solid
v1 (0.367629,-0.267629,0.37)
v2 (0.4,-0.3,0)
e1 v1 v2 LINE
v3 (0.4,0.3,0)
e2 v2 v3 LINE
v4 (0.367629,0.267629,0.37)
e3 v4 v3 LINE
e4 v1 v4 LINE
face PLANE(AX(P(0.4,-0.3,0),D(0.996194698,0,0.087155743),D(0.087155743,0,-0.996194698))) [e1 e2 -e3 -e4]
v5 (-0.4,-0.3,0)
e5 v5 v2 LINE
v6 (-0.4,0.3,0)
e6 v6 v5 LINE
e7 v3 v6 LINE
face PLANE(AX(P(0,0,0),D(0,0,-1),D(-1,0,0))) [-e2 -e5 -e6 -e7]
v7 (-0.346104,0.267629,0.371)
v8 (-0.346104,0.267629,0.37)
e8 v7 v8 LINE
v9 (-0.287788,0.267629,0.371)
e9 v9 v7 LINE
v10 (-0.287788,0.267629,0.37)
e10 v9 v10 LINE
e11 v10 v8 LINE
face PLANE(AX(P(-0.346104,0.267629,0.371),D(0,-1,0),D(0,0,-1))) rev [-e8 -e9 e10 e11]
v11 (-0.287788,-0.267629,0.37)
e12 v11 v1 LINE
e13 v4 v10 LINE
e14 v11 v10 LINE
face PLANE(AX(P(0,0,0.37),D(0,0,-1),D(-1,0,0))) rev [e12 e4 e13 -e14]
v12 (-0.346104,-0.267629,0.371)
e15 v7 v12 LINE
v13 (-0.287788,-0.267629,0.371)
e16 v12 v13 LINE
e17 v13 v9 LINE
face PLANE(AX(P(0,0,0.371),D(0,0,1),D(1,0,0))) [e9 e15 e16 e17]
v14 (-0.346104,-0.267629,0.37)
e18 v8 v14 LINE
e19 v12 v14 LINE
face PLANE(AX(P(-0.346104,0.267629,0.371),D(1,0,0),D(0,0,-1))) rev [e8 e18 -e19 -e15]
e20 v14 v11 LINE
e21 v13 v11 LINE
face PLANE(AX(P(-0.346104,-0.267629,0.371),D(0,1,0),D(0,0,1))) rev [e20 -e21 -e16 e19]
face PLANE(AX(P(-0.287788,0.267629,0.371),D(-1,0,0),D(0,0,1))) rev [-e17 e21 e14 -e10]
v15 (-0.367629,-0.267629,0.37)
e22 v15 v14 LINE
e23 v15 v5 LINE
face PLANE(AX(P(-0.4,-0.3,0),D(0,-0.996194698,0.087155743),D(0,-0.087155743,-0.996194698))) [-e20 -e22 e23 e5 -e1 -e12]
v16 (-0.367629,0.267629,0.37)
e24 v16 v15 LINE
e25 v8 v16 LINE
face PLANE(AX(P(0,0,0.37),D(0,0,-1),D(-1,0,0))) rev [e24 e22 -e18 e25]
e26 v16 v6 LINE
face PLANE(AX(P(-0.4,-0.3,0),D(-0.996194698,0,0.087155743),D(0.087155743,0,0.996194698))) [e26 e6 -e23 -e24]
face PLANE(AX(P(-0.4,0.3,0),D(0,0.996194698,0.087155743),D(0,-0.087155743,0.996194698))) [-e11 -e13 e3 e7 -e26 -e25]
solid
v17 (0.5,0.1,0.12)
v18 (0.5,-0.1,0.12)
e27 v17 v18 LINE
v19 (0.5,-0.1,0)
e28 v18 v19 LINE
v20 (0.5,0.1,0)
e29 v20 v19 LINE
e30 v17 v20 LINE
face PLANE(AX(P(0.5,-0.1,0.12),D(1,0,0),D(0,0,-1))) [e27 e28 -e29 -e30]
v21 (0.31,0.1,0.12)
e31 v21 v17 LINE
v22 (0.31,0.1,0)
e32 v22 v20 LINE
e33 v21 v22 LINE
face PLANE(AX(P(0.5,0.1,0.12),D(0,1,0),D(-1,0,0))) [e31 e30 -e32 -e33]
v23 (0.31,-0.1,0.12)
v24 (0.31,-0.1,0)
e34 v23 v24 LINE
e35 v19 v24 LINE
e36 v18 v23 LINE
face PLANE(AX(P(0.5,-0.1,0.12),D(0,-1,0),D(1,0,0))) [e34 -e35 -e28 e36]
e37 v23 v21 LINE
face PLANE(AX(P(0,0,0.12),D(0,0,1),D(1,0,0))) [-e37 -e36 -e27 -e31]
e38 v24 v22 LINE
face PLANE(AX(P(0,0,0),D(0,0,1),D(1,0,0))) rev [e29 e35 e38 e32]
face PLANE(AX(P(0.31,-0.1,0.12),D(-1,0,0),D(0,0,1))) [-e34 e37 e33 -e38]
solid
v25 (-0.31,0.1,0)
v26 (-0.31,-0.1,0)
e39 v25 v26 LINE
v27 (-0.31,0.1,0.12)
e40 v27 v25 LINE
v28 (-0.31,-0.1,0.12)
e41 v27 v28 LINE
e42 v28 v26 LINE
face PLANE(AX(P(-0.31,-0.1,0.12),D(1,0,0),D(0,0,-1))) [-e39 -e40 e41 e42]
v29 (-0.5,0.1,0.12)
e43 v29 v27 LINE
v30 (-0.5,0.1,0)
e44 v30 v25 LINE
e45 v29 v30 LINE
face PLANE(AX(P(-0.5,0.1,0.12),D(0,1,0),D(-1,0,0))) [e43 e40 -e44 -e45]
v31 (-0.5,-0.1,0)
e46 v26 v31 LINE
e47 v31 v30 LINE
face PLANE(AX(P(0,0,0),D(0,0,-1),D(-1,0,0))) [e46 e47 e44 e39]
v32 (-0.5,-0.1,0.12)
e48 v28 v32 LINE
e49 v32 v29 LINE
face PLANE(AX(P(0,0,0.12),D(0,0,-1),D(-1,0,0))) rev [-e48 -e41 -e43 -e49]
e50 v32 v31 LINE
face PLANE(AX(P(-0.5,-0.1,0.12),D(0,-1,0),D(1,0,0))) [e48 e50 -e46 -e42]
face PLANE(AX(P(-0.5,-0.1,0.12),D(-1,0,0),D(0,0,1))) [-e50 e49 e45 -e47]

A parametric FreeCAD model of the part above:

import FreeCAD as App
import Part
import Sketcher
from FreeCAD import Vector


def add_polygon(sketch, points):
    """Adds a closed chain of lines whose ends are joined by coincident constraints."""
    first, n = sketch.GeometryCount, len(points)
    for a, b in zip(points, points[1:] + points[:1]):
        sketch.addGeometry(Part.LineSegment(App.Vector(*a, 0), App.Vector(*b, 0)), False)
    for i in range(n):
        sketch.addConstraint(Sketcher.Constraint("Coincident", first + i, 2, first + (i + 1) % n, 1))

doc = App.newDocument("Part")
body = doc.addObject("PartDesign::Body", "Body")

# Sketch on XY plane
sketch1 = doc.addObject("Sketcher::SketchObject", "Sketch")
body.addObject(sketch1)
sketch1.AttachmentSupport = (doc.XY_Plane, [""])
sketch1.MapMode = "FlatFace"
add_polygon(sketch1, [(-0.4, 0.3), (-0.4, -0.3), (0.4, -0.3), (0.4, 0.3)])  # lines 0-3
sketch1.addConstraint([
    Sketcher.Constraint("Vertical", 0),
    Sketcher.Constraint("Horizontal", 1),
    Sketcher.Constraint("Vertical", 2),
    Sketcher.Constraint("Horizontal", 3),
    Sketcher.Constraint("Symmetric", 0, 2, 2, 2, -1, 1),
    Sketcher.Constraint("DistanceX", 1, 1, 1, 2, 0.8),
    Sketcher.Constraint("DistanceY", 0, 2, 0, 1, 0.6),
])
pad1 = doc.addObject("PartDesign::Pad", "Pad")
body.addObject(pad1)
pad1.Profile = sketch1
pad1.Length = 0.37
pad1.TaperAngle = -5

# Sketch on XY plane
sketch2 = doc.addObject("Sketcher::SketchObject", "Sketch001")
body.addObject(sketch2)
sketch2.AttachmentSupport = (doc.XY_Plane, [""])
sketch2.MapMode = "FlatFace"
sketch2.AttachmentOffset = App.Placement(Vector(0, 0, 0.37), App.Rotation())
add_polygon(sketch2, [(-0.35, 0.27), (-0.35, -0.27), (-0.29, -0.27), (-0.29, 0.27)])  # lines 0-3
sketch2.addConstraint([
    Sketcher.Constraint("Vertical", 0),
    Sketcher.Constraint("Horizontal", 1),
    Sketcher.Constraint("Vertical", 2),
    Sketcher.Constraint("Horizontal", 3),
    Sketcher.Constraint("DistanceY", 0, 2, 0, 1, 0.535258),
    Sketcher.Constraint("DistanceX", 1, 1, 1, 2, 0.058317),
    Sketcher.Constraint("DistanceY", 0, 2, -1, 1, 0.267629),
    Sketcher.Constraint("DistanceX", 0, 2, -1, 1, 0.346104),
])
pad2 = doc.addObject("PartDesign::Pad", "Pad001")
body.addObject(pad2)
pad2.Profile = sketch2
pad2.Length = 0.001
body2 = doc.addObject("PartDesign::Body", "Body001")

# Sketch on XY plane
sketch3 = doc.addObject("Sketcher::SketchObject", "Sketch002")
body2.addObject(sketch3)
sketch3.AttachmentSupport = (doc.getObject("XY_Plane001"), [""])
sketch3.MapMode = "FlatFace"
add_polygon(sketch3, [(-0.31, 0.1), (-0.31, -0.1), (-0.5, -0.1), (-0.5, 0.1)])  # lines 0-3
sketch3.addConstraint([
    Sketcher.Constraint("Vertical", 0),
    Sketcher.Constraint("Horizontal", 1),
    Sketcher.Constraint("Vertical", 2),
    Sketcher.Constraint("Horizontal", 3),
    Sketcher.Constraint("DistanceY", 0, 2, 0, 1, 0.2),
    Sketcher.Constraint("DistanceX", 1, 2, 1, 1, 0.19),
    Sketcher.Constraint("DistanceY", 0, 2, -1, 1, 0.1),
    Sketcher.Constraint("DistanceX", 1, 2, -1, 1, 0.5),
])
pad3 = doc.addObject("PartDesign::Pad", "Pad002")
body2.addObject(pad3)
pad3.Profile = sketch3
pad3.Length = 0.12
body3 = doc.addObject("PartDesign::Body", "Body002")

# Sketch on XY plane
sketch4 = doc.addObject("Sketcher::SketchObject", "Sketch003")
body3.addObject(sketch4)
sketch4.AttachmentSupport = (doc.getObject("XY_Plane002"), [""])
sketch4.MapMode = "FlatFace"
add_polygon(sketch4, [(0.5, 0.1), (0.5, -0.1), (0.31, -0.1), (0.31, 0.1)])  # lines 0-3
sketch4.addConstraint([
    Sketcher.Constraint("Vertical", 0),
    Sketcher.Constraint("Horizontal", 1),
    Sketcher.Constraint("Vertical", 2),
    Sketcher.Constraint("Horizontal", 3),
    Sketcher.Constraint("DistanceY", 0, 2, 0, 1, 0.2),
    Sketcher.Constraint("DistanceX", 1, 2, 1, 1, 0.19),
    Sketcher.Constraint("DistanceX", -1, 1, 0, 2, 0.5),
    Sketcher.Constraint("DistanceY", 0, 2, -1, 1, 0.1),
])
pad4 = doc.addObject("PartDesign::Pad", "Pad003")
body3.addObject(pad4)
pad4.Profile = sketch4
pad4.Length = 0.12

doc.recompute()
